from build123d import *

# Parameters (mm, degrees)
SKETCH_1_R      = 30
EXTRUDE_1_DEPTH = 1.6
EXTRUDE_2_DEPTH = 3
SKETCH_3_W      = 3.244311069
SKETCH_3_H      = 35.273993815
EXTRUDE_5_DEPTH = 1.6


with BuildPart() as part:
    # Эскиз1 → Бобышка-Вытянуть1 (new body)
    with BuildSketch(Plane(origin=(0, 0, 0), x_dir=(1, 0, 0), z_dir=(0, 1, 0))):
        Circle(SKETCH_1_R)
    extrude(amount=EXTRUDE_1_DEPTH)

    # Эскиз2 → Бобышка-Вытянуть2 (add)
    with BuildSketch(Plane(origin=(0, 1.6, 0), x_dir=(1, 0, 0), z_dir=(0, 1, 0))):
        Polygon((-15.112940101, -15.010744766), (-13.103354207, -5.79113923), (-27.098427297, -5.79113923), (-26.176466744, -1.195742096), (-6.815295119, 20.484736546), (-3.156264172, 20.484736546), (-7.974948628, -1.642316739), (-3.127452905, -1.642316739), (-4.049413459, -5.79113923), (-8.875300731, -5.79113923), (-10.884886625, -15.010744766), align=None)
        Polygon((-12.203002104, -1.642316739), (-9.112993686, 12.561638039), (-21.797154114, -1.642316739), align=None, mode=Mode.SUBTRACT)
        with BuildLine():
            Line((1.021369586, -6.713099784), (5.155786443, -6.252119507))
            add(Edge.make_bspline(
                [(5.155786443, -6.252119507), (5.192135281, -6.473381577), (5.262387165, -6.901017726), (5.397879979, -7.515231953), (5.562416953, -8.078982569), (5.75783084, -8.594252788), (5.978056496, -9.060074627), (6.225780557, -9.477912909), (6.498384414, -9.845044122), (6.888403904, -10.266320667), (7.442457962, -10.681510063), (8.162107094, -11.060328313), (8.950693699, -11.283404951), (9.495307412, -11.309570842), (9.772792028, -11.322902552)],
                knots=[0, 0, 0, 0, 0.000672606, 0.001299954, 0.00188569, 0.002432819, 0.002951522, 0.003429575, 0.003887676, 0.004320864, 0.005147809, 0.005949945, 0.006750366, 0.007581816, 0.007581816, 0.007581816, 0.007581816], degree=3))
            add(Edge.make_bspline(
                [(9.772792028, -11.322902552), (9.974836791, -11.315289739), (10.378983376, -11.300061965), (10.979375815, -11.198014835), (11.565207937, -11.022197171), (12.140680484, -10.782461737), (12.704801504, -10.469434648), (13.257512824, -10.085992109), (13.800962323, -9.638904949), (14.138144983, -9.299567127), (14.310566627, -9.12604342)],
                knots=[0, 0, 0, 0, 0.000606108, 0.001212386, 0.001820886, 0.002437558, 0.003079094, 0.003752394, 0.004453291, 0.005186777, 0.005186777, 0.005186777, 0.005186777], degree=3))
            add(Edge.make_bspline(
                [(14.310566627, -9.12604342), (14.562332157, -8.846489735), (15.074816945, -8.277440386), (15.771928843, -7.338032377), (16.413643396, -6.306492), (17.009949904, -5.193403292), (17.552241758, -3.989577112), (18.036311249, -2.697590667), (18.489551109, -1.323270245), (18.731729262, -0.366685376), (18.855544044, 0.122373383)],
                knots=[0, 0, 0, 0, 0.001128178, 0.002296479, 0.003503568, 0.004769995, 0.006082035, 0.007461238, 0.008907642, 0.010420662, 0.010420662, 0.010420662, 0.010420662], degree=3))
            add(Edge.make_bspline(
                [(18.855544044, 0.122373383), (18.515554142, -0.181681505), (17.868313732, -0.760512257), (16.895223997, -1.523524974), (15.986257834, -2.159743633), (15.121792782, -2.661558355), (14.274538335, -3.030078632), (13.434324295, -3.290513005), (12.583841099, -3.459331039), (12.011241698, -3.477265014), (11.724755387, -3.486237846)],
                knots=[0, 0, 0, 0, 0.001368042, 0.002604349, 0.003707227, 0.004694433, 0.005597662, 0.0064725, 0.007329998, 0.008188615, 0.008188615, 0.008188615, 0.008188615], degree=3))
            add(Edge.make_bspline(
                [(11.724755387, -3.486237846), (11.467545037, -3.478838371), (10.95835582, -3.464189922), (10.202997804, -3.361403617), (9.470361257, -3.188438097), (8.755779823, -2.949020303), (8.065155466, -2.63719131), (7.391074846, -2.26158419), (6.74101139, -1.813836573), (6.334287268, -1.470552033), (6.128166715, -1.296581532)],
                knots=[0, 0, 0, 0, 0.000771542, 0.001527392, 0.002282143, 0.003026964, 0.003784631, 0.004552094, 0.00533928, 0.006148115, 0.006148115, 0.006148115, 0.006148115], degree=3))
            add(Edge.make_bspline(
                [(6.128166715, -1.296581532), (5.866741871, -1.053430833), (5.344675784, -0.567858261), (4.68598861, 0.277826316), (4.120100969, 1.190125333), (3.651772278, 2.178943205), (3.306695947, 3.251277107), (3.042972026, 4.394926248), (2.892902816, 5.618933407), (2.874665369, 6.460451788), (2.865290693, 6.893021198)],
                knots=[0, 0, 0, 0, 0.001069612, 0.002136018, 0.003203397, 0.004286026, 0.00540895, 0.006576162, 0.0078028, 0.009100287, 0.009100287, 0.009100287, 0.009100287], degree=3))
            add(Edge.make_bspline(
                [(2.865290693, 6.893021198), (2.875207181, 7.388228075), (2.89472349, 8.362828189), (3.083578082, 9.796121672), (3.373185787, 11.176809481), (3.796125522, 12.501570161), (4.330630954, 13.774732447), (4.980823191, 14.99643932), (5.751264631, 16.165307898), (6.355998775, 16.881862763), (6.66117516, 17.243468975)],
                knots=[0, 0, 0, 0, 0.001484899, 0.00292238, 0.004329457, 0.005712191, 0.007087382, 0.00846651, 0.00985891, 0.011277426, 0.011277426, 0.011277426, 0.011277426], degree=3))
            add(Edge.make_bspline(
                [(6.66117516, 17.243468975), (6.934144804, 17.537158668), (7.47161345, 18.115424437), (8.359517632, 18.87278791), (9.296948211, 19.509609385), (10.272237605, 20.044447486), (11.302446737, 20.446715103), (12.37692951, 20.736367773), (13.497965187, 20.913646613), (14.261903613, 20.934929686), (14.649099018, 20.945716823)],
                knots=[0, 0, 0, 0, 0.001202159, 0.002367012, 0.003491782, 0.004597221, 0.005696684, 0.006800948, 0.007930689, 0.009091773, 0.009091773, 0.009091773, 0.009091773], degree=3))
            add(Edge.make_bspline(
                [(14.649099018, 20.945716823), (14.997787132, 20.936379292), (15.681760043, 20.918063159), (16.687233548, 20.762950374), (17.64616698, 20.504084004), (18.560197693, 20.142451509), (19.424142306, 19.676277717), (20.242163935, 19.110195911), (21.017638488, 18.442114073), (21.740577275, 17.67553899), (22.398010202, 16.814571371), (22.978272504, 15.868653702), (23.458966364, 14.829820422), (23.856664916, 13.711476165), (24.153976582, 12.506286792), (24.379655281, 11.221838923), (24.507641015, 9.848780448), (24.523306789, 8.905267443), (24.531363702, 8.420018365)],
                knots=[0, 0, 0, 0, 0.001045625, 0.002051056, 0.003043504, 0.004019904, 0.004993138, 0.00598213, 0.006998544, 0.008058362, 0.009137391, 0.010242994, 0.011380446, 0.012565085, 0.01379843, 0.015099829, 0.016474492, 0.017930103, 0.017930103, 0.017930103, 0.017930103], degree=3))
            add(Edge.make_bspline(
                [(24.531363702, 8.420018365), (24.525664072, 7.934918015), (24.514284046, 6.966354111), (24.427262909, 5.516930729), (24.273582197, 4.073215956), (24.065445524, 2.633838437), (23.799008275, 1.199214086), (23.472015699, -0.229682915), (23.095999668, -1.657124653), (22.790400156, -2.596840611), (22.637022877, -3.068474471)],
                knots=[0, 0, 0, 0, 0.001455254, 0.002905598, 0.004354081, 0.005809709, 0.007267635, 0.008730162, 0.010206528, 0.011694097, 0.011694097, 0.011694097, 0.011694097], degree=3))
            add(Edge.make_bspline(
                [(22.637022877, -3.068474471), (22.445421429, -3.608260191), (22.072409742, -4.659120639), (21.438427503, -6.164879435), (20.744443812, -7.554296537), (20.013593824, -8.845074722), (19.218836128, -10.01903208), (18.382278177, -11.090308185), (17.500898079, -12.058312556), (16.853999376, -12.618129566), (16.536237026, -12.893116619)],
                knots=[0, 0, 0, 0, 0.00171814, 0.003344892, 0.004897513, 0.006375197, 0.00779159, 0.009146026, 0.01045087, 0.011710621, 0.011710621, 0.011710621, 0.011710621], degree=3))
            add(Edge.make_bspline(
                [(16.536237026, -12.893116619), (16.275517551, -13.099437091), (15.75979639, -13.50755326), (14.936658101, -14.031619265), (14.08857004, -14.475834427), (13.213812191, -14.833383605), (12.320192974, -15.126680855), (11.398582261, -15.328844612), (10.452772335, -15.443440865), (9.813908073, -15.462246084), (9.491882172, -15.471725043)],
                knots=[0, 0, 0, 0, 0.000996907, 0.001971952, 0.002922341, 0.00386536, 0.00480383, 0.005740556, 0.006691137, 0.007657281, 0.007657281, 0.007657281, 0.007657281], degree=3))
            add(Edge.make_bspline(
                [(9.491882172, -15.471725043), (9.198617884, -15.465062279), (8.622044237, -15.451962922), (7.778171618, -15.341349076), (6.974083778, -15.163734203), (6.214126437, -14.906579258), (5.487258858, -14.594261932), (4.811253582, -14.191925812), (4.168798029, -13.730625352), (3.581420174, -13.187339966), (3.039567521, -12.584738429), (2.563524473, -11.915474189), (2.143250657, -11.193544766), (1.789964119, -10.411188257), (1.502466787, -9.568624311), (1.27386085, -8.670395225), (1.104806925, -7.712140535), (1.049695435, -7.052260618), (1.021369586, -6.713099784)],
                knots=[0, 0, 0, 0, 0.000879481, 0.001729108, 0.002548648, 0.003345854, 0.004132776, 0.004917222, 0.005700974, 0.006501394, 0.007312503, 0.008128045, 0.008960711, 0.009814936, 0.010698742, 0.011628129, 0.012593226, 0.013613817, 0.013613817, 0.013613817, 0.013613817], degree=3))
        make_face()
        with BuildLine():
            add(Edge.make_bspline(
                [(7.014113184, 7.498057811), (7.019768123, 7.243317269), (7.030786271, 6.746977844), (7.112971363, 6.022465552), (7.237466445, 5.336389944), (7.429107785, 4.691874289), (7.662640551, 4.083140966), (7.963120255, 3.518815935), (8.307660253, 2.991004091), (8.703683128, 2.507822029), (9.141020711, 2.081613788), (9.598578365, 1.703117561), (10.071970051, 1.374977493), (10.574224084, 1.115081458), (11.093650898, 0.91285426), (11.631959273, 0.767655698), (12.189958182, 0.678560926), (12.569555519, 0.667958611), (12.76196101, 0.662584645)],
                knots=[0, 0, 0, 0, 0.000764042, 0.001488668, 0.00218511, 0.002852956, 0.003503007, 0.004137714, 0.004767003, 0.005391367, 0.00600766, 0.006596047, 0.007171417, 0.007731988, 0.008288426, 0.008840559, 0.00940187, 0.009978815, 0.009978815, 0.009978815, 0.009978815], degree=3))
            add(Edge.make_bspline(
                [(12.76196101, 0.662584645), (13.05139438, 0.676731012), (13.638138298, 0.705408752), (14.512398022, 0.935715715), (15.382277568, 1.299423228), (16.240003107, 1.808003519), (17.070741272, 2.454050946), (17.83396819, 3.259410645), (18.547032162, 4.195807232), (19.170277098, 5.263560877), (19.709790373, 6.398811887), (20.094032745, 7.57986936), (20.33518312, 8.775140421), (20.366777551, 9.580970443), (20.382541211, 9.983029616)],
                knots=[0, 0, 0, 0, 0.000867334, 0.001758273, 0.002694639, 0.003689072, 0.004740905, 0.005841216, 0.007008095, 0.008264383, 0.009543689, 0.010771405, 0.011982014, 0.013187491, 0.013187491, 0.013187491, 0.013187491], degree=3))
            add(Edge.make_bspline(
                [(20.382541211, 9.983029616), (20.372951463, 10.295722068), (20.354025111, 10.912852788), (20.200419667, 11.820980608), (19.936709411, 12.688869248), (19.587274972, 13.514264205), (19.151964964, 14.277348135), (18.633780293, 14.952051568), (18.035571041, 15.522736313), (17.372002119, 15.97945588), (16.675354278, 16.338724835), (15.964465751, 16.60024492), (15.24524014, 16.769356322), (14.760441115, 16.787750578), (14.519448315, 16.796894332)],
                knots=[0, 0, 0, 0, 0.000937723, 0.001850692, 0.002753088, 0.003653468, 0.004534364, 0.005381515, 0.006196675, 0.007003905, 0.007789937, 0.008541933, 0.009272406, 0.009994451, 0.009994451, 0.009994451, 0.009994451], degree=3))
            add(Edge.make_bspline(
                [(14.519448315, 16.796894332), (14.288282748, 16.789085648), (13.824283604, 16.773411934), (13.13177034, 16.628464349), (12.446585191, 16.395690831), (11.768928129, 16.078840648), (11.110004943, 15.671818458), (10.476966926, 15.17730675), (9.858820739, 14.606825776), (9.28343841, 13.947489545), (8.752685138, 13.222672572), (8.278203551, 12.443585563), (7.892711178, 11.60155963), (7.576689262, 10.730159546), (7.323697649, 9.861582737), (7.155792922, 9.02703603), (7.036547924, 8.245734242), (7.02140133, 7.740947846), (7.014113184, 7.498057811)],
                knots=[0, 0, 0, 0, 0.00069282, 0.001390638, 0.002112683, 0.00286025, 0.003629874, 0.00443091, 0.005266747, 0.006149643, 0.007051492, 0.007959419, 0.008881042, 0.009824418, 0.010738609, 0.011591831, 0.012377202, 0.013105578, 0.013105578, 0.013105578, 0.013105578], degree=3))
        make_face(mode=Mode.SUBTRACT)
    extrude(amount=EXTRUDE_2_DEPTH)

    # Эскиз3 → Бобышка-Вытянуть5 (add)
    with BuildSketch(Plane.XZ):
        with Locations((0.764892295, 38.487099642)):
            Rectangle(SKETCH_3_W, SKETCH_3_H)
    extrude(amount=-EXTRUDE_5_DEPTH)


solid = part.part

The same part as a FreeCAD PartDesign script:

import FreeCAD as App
import Part
import Sketcher

doc = App.newDocument("Part")
params = doc.addObject("Spreadsheet::Sheet", "Params")
for row, (alias, value) in enumerate([
    ("sketch1_diameter", "60 mm"),
    ("pad1_length", "1.6 mm"),
    ("pad2_length", "3 mm"),
    ("pad3_length", "1.6 mm"),
], start=1):
    params.set(f"A{row}", alias)
    params.set(f"B{row}", "=" + value)
    params.setAlias(f"B{row}", alias)

body = doc.addObject("PartDesign::Body", "Body")

# Sketch on XZ plane
sketch1 = body.newObject("Sketcher::SketchObject", "Sketch")
sketch1.AttachmentSupport = (doc.getObject("XZ_Plane"), [""])
sketch1.MapMode = "FlatFace"
sketch1.addGeometry(Part.Circle(App.Vector(0, 0, 0), App.Vector(0, 0, 1), 30), False)
sketch1.addConstraint(Sketcher.Constraint("Coincident", 0, 3, -1, 1))
sketch1.addConstraint(Sketcher.Constraint("Diameter", 0, 60.0))
sketch1.setExpression("Constraints[1]", "Params.sketch1_diameter")
pad1 = body.newObject("PartDesign::Pad", "Pad")
pad1.Profile = sketch1
pad1.setExpression("Length", "Params.pad1_length")
pad1.Reversed = True

# Sketch on XZ plane
sketch2 = body.newObject("Sketcher::SketchObject", "Sketch001")
sketch2.AttachmentSupport = (doc.getObject("XZ_Plane"), [""])
sketch2.MapMode = "FlatFace"
sketch2.AttachmentOffset = App.Placement(App.Vector(0, 0, -1.6), App.Rotation())
sketch2.addGeometry(Part.LineSegment(App.Vector(-13.103354, 5.791139, 0), App.Vector(-15.11294, 15.010745, 0)), False)
sketch2.addGeometry(Part.LineSegment(App.Vector(-15.11294, 15.010745, 0), App.Vector(-10.884887, 15.010745, 0)), False)
sketch2.addGeometry(Part.LineSegment(App.Vector(-10.884887, 15.010745, 0), App.Vector(-8.875301, 5.791139, 0)), False)
sketch2.addGeometry(Part.LineSegment(App.Vector(-8.875301, 5.791139, 0), App.Vector(-4.049413, 5.791139, 0)), False)
sketch2.addGeometry(Part.LineSegment(App.Vector(-4.049413, 5.791139, 0), App.Vector(-3.127453, 1.642317, 0)), False)
sketch2.addGeometry(Part.LineSegment(App.Vector(-3.127453, 1.642317, 0), App.Vector(-7.974949, 1.642317, 0)), False)
sketch2.addGeometry(Part.LineSegment(App.Vector(-7.974949, 1.642317, 0), App.Vector(-3.156264, -20.484737, 0)), False)
sketch2.addGeometry(Part.LineSegment(App.Vector(-3.156264, -20.484737, 0), App.Vector(-6.815295, -20.484737, 0)), False)
sketch2.addGeometry(Part.LineSegment(App.Vector(-6.815295, -20.484737, 0), App.Vector(-26.176467, 1.195742, 0)), False)
sketch2.addGeometry(Part.LineSegment(App.Vector(-26.176467, 1.195742, 0), App.Vector(-27.098427, 5.791139, 0)), False)
sketch2.addGeometry(Part.LineSegment(App.Vector(-27.098427, 5.791139, 0), App.Vector(-13.103354, 5.791139, 0)), False)
sketch2.addGeometry(Part.LineSegment(App.Vector(-12.203002, 1.642317, 0), App.Vector(-21.797154, 1.642317, 0)), False)
sketch2.addGeometry(Part.LineSegment(App.Vector(-21.797154, 1.642317, 0), App.Vector(-9.112994, -12.561638, 0)), False)
sketch2.addGeometry(Part.LineSegment(App.Vector(-9.112994, -12.561638, 0), App.Vector(-12.203002, 1.642317, 0)), False)
sketch2.addGeometry(Part.LineSegment(App.Vector(5.155786, 6.25212, 0), App.Vector(1.02137, 6.7131, 0)), False)
sketch2.addGeometry(Part.BSplineCurve([App.Vector(9.491882, 15.471725, 0), App.Vector(9.198618, 15.465062, 0), App.Vector(8.622044, 15.451963, 0), App.Vector(7.778172, 15.341349, 0), App.Vector(6.974084, 15.163734, 0), App.Vector(6.214126, 14.906579, 0), App.Vector(5.487259, 14.594262, 0), App.Vector(4.811254, 14.191926, 0), App.Vector(4.168798, 13.730625, 0), App.Vector(3.58142, 13.18734, 0), App.Vector(3.039568, 12.584738, 0), App.Vector(2.563524, 11.915474, 0), App.Vector(2.143251, 11.193545, 0), App.Vector(1.789964, 10.411188, 0), App.Vector(1.502467, 9.568624, 0), App.Vector(1.273861, 8.670395, 0), App.Vector(1.104807, 7.712141, 0), App.Vector(1.049695, 7.052261, 0), App.Vector(1.02137, 6.7131, 0)], [4, 1, 1, 1, 1, 1, 1, 1, 1, 1, 1, 1, 1, 1, 1, 1, 4], [0, 0.000879481, 0.001729108, 0.002548648, 0.003345854, 0.004132776, 0.004917222, 0.005700974, 0.006501394, 0.007312503, 0.008128045, 0.008960711, 0.009814936, 0.010698742, 0.011628129, 0.012593226, 0.013613817], False, 3, [1, 1, 1, 1, 1, 1, 1, 1, 1, 1, 1, 1, 1, 1, 1, 1, 1, 1, 1], False), False)
sketch2.addGeometry(Part.BSplineCurve([App.Vector(16.536237, 12.893117, 0), App.Vector(16.275518, 13.099437, 0), App.Vector(15.759796, 13.507553, 0), App.Vector(14.936658, 14.031619, 0), App.Vector(14.08857, 14.475834, 0), App.Vector(13.213812, 14.833384, 0), App.Vector(12.320193, 15.126681, 0), App.Vector(11.398582, 15.328845, 0), App.Vector(10.452772, 15.443441, 0), App.Vector(9.813908, 15.462246, 0), App.Vector(9.491882, 15.471725, 0)], [4, 1, 1, 1, 1, 1, 1, 1, 4], [0, 0.000996907, 0.001971952, 0.002922341, 0.00386536, 0.00480383, 0.005740556, 0.006691137, 0.007657281], False, 3, [1, 1, 1, 1, 1, 1, 1, 1, 1, 1, 1], False), False)
sketch2.addGeometry(Part.BSplineCurve([App.Vector(22.637023, 3.068474, 0), App.Vector(22.445421, 3.60826, 0), App.Vector(22.07241, 4.659121, 0), App.Vector(21.438428, 6.164879, 0), App.Vector(20.744444, 7.554297, 0), App.Vector(20.013594, 8.845075, 0), App.Vector(19.218836, 10.019032, 0), App.Vector(18.382278, 11.090308, 0), App.Vector(17.500898, 12.058313, 0), App.Vector(16.853999, 12.61813, 0), App.Vector(16.536237, 12.893117, 0)], [4, 1, 1, 1, 1, 1, 1, 1, 4], [0, 0.00171814, 0.003344892, 0.004897513, 0.006375197, 0.00779159, 0.009146026, 0.01045087, 0.011710621], False, 3, [1, 1, 1, 1, 1, 1, 1, 1, 1, 1, 1], False), False)
sketch2.addGeometry(Part.BSplineCurve([App.Vector(24.531364, -8.420018, 0), App.Vector(24.525664, -7.934918, 0), App.Vector(24.514284, -6.966354, 0), App.Vector(24.427263, -5.516931, 0), App.Vector(24.273582, -4.073216, 0), App.Vector(24.065446, -2.633838, 0), App.Vector(23.799008, -1.199214, 0), App.Vector(23.472016, 0.229683, 0), App.Vector(23.096, 1.657125, 0), App.Vector(22.7904, 2.596841, 0), App.Vector(22.637023, 3.068474, 0)], [4, 1, 1, 1, 1, 1, 1, 1, 4], [0, 0.001455254, 0.002905598, 0.004354081, 0.005809709, 0.007267635, 0.008730162, 0.010206528, 0.011694097], False, 3, [1, 1, 1, 1, 1, 1, 1, 1, 1, 1, 1], False), False)
sketch2.addGeometry(Part.BSplineCurve([App.Vector(14.649099, -20.945717, 0), App.Vector(14.997787, -20.936379, 0), App.Vector(15.68176, -20.918063, 0), App.Vector(16.687234, -20.76295, 0), App.Vector(17.646167, -20.504084, 0), App.Vector(18.560198, -20.142452, 0), App.Vector(19.424142, -19.676278, 0), App.Vector(20.242164, -19.110196, 0), App.Vector(21.017638, -18.442114, 0), App.Vector(21.740577, -17.675539, 0), App.Vector(22.39801, -16.814571, 0), App.Vector(22.978273, -15.868654, 0), App.Vector(23.458966, -14.82982, 0), App.Vector(23.856665, -13.711476, 0), App.Vector(24.153977, -12.506287, 0), App.Vector(24.379655, -11.221839, 0), App.Vector(24.507641, -9.84878, 0), App.Vector(24.523307, -8.905267, 0), App.Vector(24.531364, -8.420018, 0)], [4, 1, 1, 1, 1, 1, 1, 1, 1, 1, 1, 1, 1, 1, 1, 1, 4], [0, 0.001045625, 0.002051056, 0.003043504, 0.004019904, 0.004993138, 0.00598213, 0.006998544, 0.008058362, 0.009137391, 0.010242994, 0.011380446, 0.012565085, 0.01379843, 0.015099829, 0.016474492, 0.017930103], False, 3, [1, 1, 1, 1, 1, 1, 1, 1, 1, 1, 1, 1, 1, 1, 1, 1, 1, 1, 1], False), False)
sketch2.addGeometry(Part.BSplineCurve([App.Vector(6.661175, -17.243469, 0), App.Vector(6.934145, -17.537159, 0), App.Vector(7.471613, -18.115424, 0), App.Vector(8.359518, -18.872788, 0), App.Vector(9.296948, -19.509609, 0), App.Vector(10.272238, -20.044447, 0), App.Vector(11.302447, -20.446715, 0), App.Vector(12.37693, -20.736368, 0), App.Vector(13.497965, -20.913647, 0), App.Vector(14.261904, -20.93493, 0), App.Vector(14.649099, -20.945717, 0)], [4, 1, 1, 1, 1, 1, 1, 1, 4], [0, 0.001202159, 0.002367012, 0.003491782, 0.004597221, 0.005696684, 0.006800948, 0.007930689, 0.009091773], False, 3, [1, 1, 1, 1, 1, 1, 1, 1, 1, 1, 1], False), False)
sketch2.addGeometry(Part.BSplineCurve([App.Vector(2.865291, -6.893021, 0), App.Vector(2.875207, -7.388228, 0), App.Vector(2.894723, -8.362828, 0), App.Vector(3.083578, -9.796122, 0), App.Vector(3.373186, -11.176809, 0), App.Vector(3.796126, -12.50157, 0), App.Vector(4.330631, -13.774732, 0), App.Vector(4.980823, -14.996439, 0), App.Vector(5.751265, -16.165308, 0), App.Vector(6.355999, -16.881863, 0), App.Vector(6.661175, -17.243469, 0)], [4, 1, 1, 1, 1, 1, 1, 1, 4], [0, 0.001484899, 0.00292238, 0.004329457, 0.005712191, 0.007087382, 0.00846651, 0.00985891, 0.011277426], False, 3, [1, 1, 1, 1, 1, 1, 1, 1, 1, 1, 1], False), False)
sketch2.addGeometry(Part.BSplineCurve([App.Vector(6.128167, 1.296582, 0), App.Vector(5.866742, 1.053431, 0), App.Vector(5.344676, 0.567858, 0), App.Vector(4.685989, -0.277826, 0), App.Vector(4.120101, -1.190125, 0), App.Vector(3.651772, -2.178943, 0), App.Vector(3.306696, -3.251277, 0), App.Vector(3.042972, -4.394926, 0), App.Vector(2.892903, -5.618933, 0), App.Vector(2.874665, -6.460452, 0), App.Vector(2.865291, -6.893021, 0)], [4, 1, 1, 1, 1, 1, 1, 1, 4], [0, 0.001069612, 0.002136018, 0.003203397, 0.004286026, 0.00540895, 0.006576162, 0.0078028, 0.009100287], False, 3, [1, 1, 1, 1, 1, 1, 1, 1, 1, 1, 1], False), False)
sketch2.addGeometry(Part.BSplineCurve([App.Vector(11.724755, 3.486238, 0), App.Vector(11.467545, 3.478838, 0), App.Vector(10.958356, 3.46419, 0), App.Vector(10.202998, 3.361404, 0), App.Vector(9.470361, 3.188438, 0), App.Vector(8.75578, 2.94902, 0), App.Vector(8.065155, 2.637191, 0), App.Vector(7.391075, 2.261584, 0), App.Vector(6.741011, 1.813837, 0), App.Vector(6.334287, 1.470552, 0), App.Vector(6.128167, 1.296582, 0)], [4, 1, 1, 1, 1, 1, 1, 1, 4], [0, 0.000771542, 0.001527392, 0.002282143, 0.003026964, 0.003784631, 0.004552094, 0.00533928, 0.006148115], False, 3, [1, 1, 1, 1, 1, 1, 1, 1, 1, 1, 1], False), False)
sketch2.addGeometry(Part.BSplineCurve([App.Vector(18.855544, -0.122373, 0), App.Vector(18.515554, 0.181682, 0), App.Vector(17.868314, 0.760512, 0), App.Vector(16.895224, 1.523525, 0), App.Vector(15.986258, 2.159744, 0), App.Vector(15.121793, 2.661558, 0), App.Vector(14.274538, 3.030079, 0), App.Vector(13.434324, 3.290513, 0), App.Vector(12.583841, 3.459331, 0), App.Vector(12.011242, 3.477265, 0), App.Vector(11.724755, 3.486238, 0)], [4, 1, 1, 1, 1, 1, 1, 1, 4], [0, 0.001368042, 0.002604349, 0.003707227, 0.004694433, 0.005597662, 0.0064725, 0.007329998, 0.008188615], False, 3, [1, 1, 1, 1, 1, 1, 1, 1, 1, 1, 1], False), False)
sketch2.addGeometry(Part.BSplineCurve([App.Vector(14.310567, 9.126043, 0), App.Vector(14.562332, 8.84649, 0), App.Vector(15.074817, 8.27744, 0), App.Vector(15.771929, 7.338032, 0), App.Vector(16.413643, 6.306492, 0), App.Vector(17.00995, 5.193403, 0), App.Vector(17.552242, 3.989577, 0), App.Vector(18.036311, 2.697591, 0), App.Vector(18.489551, 1.32327, 0), App.Vector(18.731729, 0.366685, 0), App.Vector(18.855544, -0.122373, 0)], [4, 1, 1, 1, 1, 1, 1, 1, 4], [0, 0.001128178, 0.002296479, 0.003503568, 0.004769995, 0.006082035, 0.007461238, 0.008907642, 0.010420662], False, 3, [1, 1, 1, 1, 1, 1, 1, 1, 1, 1, 1], False), False)
sketch2.addGeometry(Part.BSplineCurve([App.Vector(9.772792, 11.322903, 0), App.Vector(9.974837, 11.31529, 0), App.Vector(10.378983, 11.300062, 0), App.Vector(10.979376, 11.198015, 0), App.Vector(11.565208, 11.022197, 0), App.Vector(12.14068, 10.782462, 0), App.Vector(12.704802, 10.469435, 0), App.Vector(13.257513, 10.085992, 0), App.Vector(13.800962, 9.638905, 0), App.Vector(14.138145, 9.299567, 0), App.Vector(14.310567, 9.126043, 0)], [4, 1, 1, 1, 1, 1, 1, 1, 4], [0, 0.000606108, 0.001212386, 0.001820886, 0.002437558, 0.003079094, 0.003752394, 0.004453291, 0.005186777], False, 3, [1, 1, 1, 1, 1, 1, 1, 1, 1, 1, 1], False), False)
sketch2.addGeometry(Part.BSplineCurve([App.Vector(5.155786, 6.25212, 0), App.Vector(5.192135, 6.473382, 0), App.Vector(5.262387, 6.901018, 0), App.Vector(5.39788, 7.515232, 0), App.Vector(5.562417, 8.078983, 0), App.Vector(5.757831, 8.594253, 0), App.Vector(5.978056, 9.060075, 0), App.Vector(6.225781, 9.477913, 0), App.Vector(6.498384, 9.845044, 0), App.Vector(6.888404, 10.266321, 0), App.Vector(7.442458, 10.68151, 0), App.Vector(8.162107, 11.060328, 0), App.Vector(8.950694, 11.283405, 0), App.Vector(9.495307, 11.309571, 0), App.Vector(9.772792, 11.322903, 0)], [4, 1, 1, 1, 1, 1, 1, 1, 1, 1, 1, 1, 4], [0, 0.000672606, 0.001299954, 0.00188569, 0.002432819, 0.002951522, 0.003429575, 0.003887676, 0.004320864, 0.005147809, 0.005949945, 0.006750366, 0.007581816], False, 3, [1, 1, 1, 1, 1, 1, 1, 1, 1, 1, 1, 1, 1, 1, 1], False), False)
sketch2.addGeometry(Part.BSplineCurve([App.Vector(14.519448, -16.796894, 0), App.Vector(14.288283, -16.789086, 0), App.Vector(13.824284, -16.773412, 0), App.Vector(13.13177, -16.628464, 0), App.Vector(12.446585, -16.395691, 0), App.Vector(11.768928, -16.078841, 0), App.Vector(11.110005, -15.671818, 0), App.Vector(10.476967, -15.177307, 0), App.Vector(9.858821, -14.606826, 0), App.Vector(9.283438, -13.94749, 0), App.Vector(8.752685, -13.222673, 0), App.Vector(8.278204, -12.443586, 0), App.Vector(7.892711, -11.60156, 0), App.Vector(7.576689, -10.73016, 0), App.Vector(7.323698, -9.861583, 0), App.Vector(7.155793, -9.027036, 0), App.Vector(7.036548, -8.245734, 0), App.Vector(7.021401, -7.740948, 0), App.Vector(7.014113, -7.498058, 0)], [4, 1, 1, 1, 1, 1, 1, 1, 1, 1, 1, 1, 1, 1, 1, 1, 4], [0, 0.00069282, 0.001390638, 0.002112683, 0.00286025, 0.003629874, 0.00443091, 0.005266747, 0.006149643, 0.007051492, 0.007959419, 0.008881042, 0.009824418, 0.010738609, 0.011591831, 0.012377202, 0.013105578], False, 3, [1, 1, 1, 1, 1, 1, 1, 1, 1, 1, 1, 1, 1, 1, 1, 1, 1, 1, 1], False), False)
sketch2.addGeometry(Part.BSplineCurve([App.Vector(20.382541, -9.98303, 0), App.Vector(20.372951, -10.295722, 0), App.Vector(20.354025, -10.912853, 0), App.Vector(20.20042, -11.820981, 0), App.Vector(19.936709, -12.688869, 0), App.Vector(19.587275, -13.514264, 0), App.Vector(19.151965, -14.277348, 0), App.Vector(18.63378, -14.952052, 0), App.Vector(18.035571, -15.522736, 0), App.Vector(17.372002, -15.979456, 0), App.Vector(16.675354, -16.338725, 0), App.Vector(15.964466, -16.600245, 0), App.Vector(15.24524, -16.769356, 0), App.Vector(14.760441, -16.787751, 0), App.Vector(14.519448, -16.796894, 0)], [4, 1, 1, 1, 1, 1, 1, 1, 1, 1, 1, 1, 4], [0, 0.000937723, 0.001850692, 0.002753088, 0.003653468, 0.004534364, 0.005381515, 0.006196675, 0.007003905, 0.007789937, 0.008541933, 0.009272406, 0.009994451], False, 3, [1, 1, 1, 1, 1, 1, 1, 1, 1, 1, 1, 1, 1, 1, 1], False), False)
sketch2.addGeometry(Part.BSplineCurve([App.Vector(12.761961, -0.662585, 0), App.Vector(13.051394, -0.676731, 0), App.Vector(13.638138, -0.705409, 0), App.Vector(14.512398, -0.935716, 0), App.Vector(15.382278, -1.299423, 0), App.Vector(16.240003, -1.808004, 0), App.Vector(17.070741, -2.454051, 0), App.Vector(17.833968, -3.259411, 0), App.Vector(18.547032, -4.195807, 0), App.Vector(19.170277, -5.263561, 0), App.Vector(19.70979, -6.398812, 0), App.Vector(20.094033, -7.579869, 0), App.Vector(20.335183, -8.77514, 0), App.Vector(20.366778, -9.58097, 0), App.Vector(20.382541, -9.98303, 0)], [4, 1, 1, 1, 1, 1, 1, 1, 1, 1, 1, 1, 4], [0, 0.000867334, 0.001758273, 0.002694639, 0.003689072, 0.004740905, 0.005841216, 0.007008095, 0.008264383, 0.009543689, 0.010771405, 0.011982014, 0.013187491], False, 3, [1, 1, 1, 1, 1, 1, 1, 1, 1, 1, 1, 1, 1, 1, 1], False), False)
sketch2.addGeometry(Part.BSplineCurve([App.Vector(7.014113, -7.498058, 0), App.Vector(7.019768, -7.243317, 0), App.Vector(7.030786, -6.746978, 0), App.Vector(7.112971, -6.022466, 0), App.Vector(7.237466, -5.33639, 0), App.Vector(7.429108, -4.691874, 0), App.Vector(7.662641, -4.083141, 0), App.Vector(7.96312, -3.518816, 0), App.Vector(8.30766, -2.991004, 0), App.Vector(8.703683, -2.507822, 0), App.Vector(9.141021, -2.081614, 0), App.Vector(9.598578, -1.703118, 0), App.Vector(10.07197, -1.374977, 0), App.Vector(10.574224, -1.115081, 0), App.Vector(11.093651, -0.912854, 0), App.Vector(11.631959, -0.767656, 0), App.Vector(12.189958, -0.678561, 0), App.Vector(12.569556, -0.667959, 0), App.Vector(12.761961, -0.662585, 0)], [4, 1, 1, 1, 1, 1, 1, 1, 1, 1, 1, 1, 1, 1, 1, 1, 4], [0, 0.000764042, 0.001488668, 0.00218511, 0.002852956, 0.003503007, 0.004137714, 0.004767003, 0.005391367, 0.00600766, 0.006596047, 0.007171417, 0.007731988, 0.008288426, 0.008840559, 0.00940187, 0.009978815], False, 3, [1, 1, 1, 1, 1, 1, 1, 1, 1, 1, 1, 1, 1, 1, 1, 1, 1, 1, 1], False), False)
sketch2.addConstraint(Sketcher.Constraint("Block", 15))
sketch2.addConstraint(Sketcher.Constraint("Block", 16))
sketch2.addConstraint(Sketcher.Constraint("Block", 17))
sketch2.addConstraint(Sketcher.Constraint("Block", 18))
sketch2.addConstraint(Sketcher.Constraint("Block", 19))
sketch2.addConstraint(Sketcher.Constraint("Block", 20))
sketch2.addConstraint(Sketcher.Constraint("Block", 21))
sketch2.addConstraint(Sketcher.Constraint("Block", 22))
sketch2.addConstraint(Sketcher.Constraint("Block", 23))
sketch2.addConstraint(Sketcher.Constraint("Block", 24))
sketch2.addConstraint(Sketcher.Constraint("Block", 25))
sketch2.addConstraint(Sketcher.Constraint("Block", 26))
sketch2.addConstraint(Sketcher.Constraint("Block", 27))
sketch2.addConstraint(Sketcher.Constraint("Block", 28))
sketch2.addConstraint(Sketcher.Constraint("Block", 29))
sketch2.addConstraint(Sketcher.Constraint("Block", 30))
sketch2.addConstraint(Sketcher.Constraint("Block", 31))
sketch2.addConstraint(Sketcher.Constraint("Coincident", 0, 2, 1, 1))
sketch2.addConstraint(Sketcher.Constraint("Coincident", 1, 2, 2, 1))
sketch2.addConstraint(Sketcher.Constraint("Coincident", 2, 2, 3, 1))
sketch2.addConstraint(Sketcher.Constraint("Coincident", 3, 2, 4, 1))
sketch2.addConstraint(Sketcher.Constraint("Coincident", 4, 2, 5, 1))
sketch2.addConstraint(Sketcher.Constraint("Coincident", 5, 2, 6, 1))
sketch2.addConstraint(Sketcher.Constraint("Coincident", 6, 2, 7, 1))
sketch2.addConstraint(Sketcher.Constraint("Coincident", 7, 2, 8, 1))
sketch2.addConstraint(Sketcher.Constraint("Coincident", 8, 2, 9, 1))
sketch2.addConstraint(Sketcher.Constraint("Coincident", 9, 2, 10, 1))
sketch2.addConstraint(Sketcher.Constraint("Coincident", 10, 2, 0, 1))
sketch2.addConstraint(Sketcher.Constraint("Coincident", 11, 2, 12, 1))
sketch2.addConstraint(Sketcher.Constraint("Coincident", 12, 2, 13, 1))
sketch2.addConstraint(Sketcher.Constraint("Coincident", 13, 2, 11, 1))
sketch2.addConstraint(Sketcher.Constraint("Coincident", 14, 2, 15, 2))
sketch2.addConstraint(Sketcher.Constraint("Coincident", 27, 1, 14, 1))
sketch2.addConstraint(Sketcher.Constraint("Horizontal", 1))
sketch2.addConstraint(Sketcher.Constraint("Horizontal", 3))
sketch2.addConstraint(Sketcher.Constraint("Horizontal", 5))
sketch2.addConstraint(Sketcher.Constraint("Horizontal", 7))
sketch2.addConstraint(Sketcher.Constraint("Horizontal", 10))
sketch2.addConstraint(Sketcher.Constraint("Horizontal", 11))
sketch2.addConstraint(Sketcher.Constraint("Parallel", 0, 2))
sketch2.addConstraint(Sketcher.Constraint("Horizontal", 3, 2, 9, 2))
sketch2.addConstraint(Sketcher.Constraint("Horizontal", 5, 2, 11, 2))
sketch2.addConstraint(Sketcher.Constraint("DistanceX", 7, 2, 7, 1, 3.659031))
sketch2.addConstraint(Sketcher.Constraint("DistanceX", 2, 2, -1, 1, 8.875301))
sketch2.addConstraint(Sketcher.Constraint("DistanceX", 11, 2, 10, 2, 8.6938))
sketch2.addConstraint(Sketcher.Constraint("DistanceX", 12, 2, 7, 2, 2.297699))
sketch2.addConstraint(Sketcher.Constraint("DistanceY", 7, 2, 12, 2, 7.923099))
sketch2.addConstraint(Sketcher.Constraint("DistanceX", 13, 2, 2, 2, 3.327701))
sketch2.addConstraint(Sketcher.Constraint("Distance", 4, 4.250028))
sketch2.addConstraint(Sketcher.Constraint("Distance", 8, 29.067131))
sketch2.addConstraint(Sketcher.Constraint("Distance", 9, 4.68697))
sketch2.addConstraint(Sketcher.Constraint("Distance", 13, 14.536178))
sketch2.addConstraint(Sketcher.Constraint("DistanceX", 1, 1, 1, 2, 4.228053))
sketch2.addConstraint(Sketcher.Constraint("DistanceX", 3, 1, 3, 2, 4.825887))
sketch2.addConstraint(Sketcher.Constraint("DistanceX", 5, 2, 5, 1, 4.847496))
sketch2.addConstraint(Sketcher.Constraint("DistanceX", 10, 1, 10, 2, 13.995073))
sketch2.addConstraint(Sketcher.Constraint("DistanceX", 0, 2, -1, 1, 15.11294))
sketch2.addConstraint(Sketcher.Constraint("DistanceY", -1, 1, 2, 2, 5.791139))
sketch2.addConstraint(Sketcher.Constraint("DistanceX", 5, 2, -1, 1, 7.974949))
sketch2.addConstraint(Sketcher.Constraint("DistanceY", 12, 2, -1, 1, 12.561638))
sketch2.addConstraint(Sketcher.Constraint("DistanceY", 4, 2, 1, 2, 13.368428))
pad2 = body.newObject("PartDesign::Pad", "Pad001")
pad2.Profile = sketch2
pad2.setExpression("Length", "Params.pad2_length")
pad2.Reversed = True

# Sketch on XZ plane
sketch3 = body.newObject("Sketcher::SketchObject", "Sketch002")
sketch3.AttachmentSupport = (doc.getObject("XZ_Plane"), [""])
sketch3.MapMode = "FlatFace"
sketch3.addGeometry(Part.LineSegment(App.Vector(-0.9, 56.1, 0), App.Vector(-0.9, 20.9, 0)), False)
sketch3.addGeometry(Part.LineSegment(App.Vector(-0.9, 20.9, 0), App.Vector(2.4, 20.9, 0)), False)
sketch3.addGeometry(Part.LineSegment(App.Vector(2.4, 20.9, 0), App.Vector(2.4, 56.1, 0)), False)
sketch3.addGeometry(Part.LineSegment(App.Vector(2.4, 56.1, 0), App.Vector(-0.9, 56.1, 0)), False)
sketch3.addConstraint(Sketcher.Constraint("Coincident", 0, 2, 1, 1))
sketch3.addConstraint(Sketcher.Constraint("Coincident", 1, 2, 2, 1))
sketch3.addConstraint(Sketcher.Constraint("Coincident", 2, 2, 3, 1))
sketch3.addConstraint(Sketcher.Constraint("Coincident", 3, 2, 0, 1))
sketch3.addConstraint(Sketcher.Constraint("Vertical", 0))
sketch3.addConstraint(Sketcher.Constraint("Horizontal", 1))
sketch3.addConstraint(Sketcher.Constraint("Vertical", 2))
sketch3.addConstraint(Sketcher.Constraint("Horizontal", 3))
sketch3.addConstraint(Sketcher.Constraint("DistanceX", 1, 1, 1, 2, 3.244311))
sketch3.addConstraint(Sketcher.Constraint("DistanceY", 0, 2, 0, 1, 35.273994))
sketch3.addConstraint(Sketcher.Constraint("DistanceX", 0, 2, -1, 1, 0.857263))
sketch3.addConstraint(Sketcher.Constraint("DistanceY", -1, 1, 0, 2, 20.850103))
pad3 = body.newObject("PartDesign::Pad", "Pad002")
pad3.Profile = sketch3
pad3.setExpression("Length", "Params.pad3_length")
pad3.Reversed = True

doc.recompute()
